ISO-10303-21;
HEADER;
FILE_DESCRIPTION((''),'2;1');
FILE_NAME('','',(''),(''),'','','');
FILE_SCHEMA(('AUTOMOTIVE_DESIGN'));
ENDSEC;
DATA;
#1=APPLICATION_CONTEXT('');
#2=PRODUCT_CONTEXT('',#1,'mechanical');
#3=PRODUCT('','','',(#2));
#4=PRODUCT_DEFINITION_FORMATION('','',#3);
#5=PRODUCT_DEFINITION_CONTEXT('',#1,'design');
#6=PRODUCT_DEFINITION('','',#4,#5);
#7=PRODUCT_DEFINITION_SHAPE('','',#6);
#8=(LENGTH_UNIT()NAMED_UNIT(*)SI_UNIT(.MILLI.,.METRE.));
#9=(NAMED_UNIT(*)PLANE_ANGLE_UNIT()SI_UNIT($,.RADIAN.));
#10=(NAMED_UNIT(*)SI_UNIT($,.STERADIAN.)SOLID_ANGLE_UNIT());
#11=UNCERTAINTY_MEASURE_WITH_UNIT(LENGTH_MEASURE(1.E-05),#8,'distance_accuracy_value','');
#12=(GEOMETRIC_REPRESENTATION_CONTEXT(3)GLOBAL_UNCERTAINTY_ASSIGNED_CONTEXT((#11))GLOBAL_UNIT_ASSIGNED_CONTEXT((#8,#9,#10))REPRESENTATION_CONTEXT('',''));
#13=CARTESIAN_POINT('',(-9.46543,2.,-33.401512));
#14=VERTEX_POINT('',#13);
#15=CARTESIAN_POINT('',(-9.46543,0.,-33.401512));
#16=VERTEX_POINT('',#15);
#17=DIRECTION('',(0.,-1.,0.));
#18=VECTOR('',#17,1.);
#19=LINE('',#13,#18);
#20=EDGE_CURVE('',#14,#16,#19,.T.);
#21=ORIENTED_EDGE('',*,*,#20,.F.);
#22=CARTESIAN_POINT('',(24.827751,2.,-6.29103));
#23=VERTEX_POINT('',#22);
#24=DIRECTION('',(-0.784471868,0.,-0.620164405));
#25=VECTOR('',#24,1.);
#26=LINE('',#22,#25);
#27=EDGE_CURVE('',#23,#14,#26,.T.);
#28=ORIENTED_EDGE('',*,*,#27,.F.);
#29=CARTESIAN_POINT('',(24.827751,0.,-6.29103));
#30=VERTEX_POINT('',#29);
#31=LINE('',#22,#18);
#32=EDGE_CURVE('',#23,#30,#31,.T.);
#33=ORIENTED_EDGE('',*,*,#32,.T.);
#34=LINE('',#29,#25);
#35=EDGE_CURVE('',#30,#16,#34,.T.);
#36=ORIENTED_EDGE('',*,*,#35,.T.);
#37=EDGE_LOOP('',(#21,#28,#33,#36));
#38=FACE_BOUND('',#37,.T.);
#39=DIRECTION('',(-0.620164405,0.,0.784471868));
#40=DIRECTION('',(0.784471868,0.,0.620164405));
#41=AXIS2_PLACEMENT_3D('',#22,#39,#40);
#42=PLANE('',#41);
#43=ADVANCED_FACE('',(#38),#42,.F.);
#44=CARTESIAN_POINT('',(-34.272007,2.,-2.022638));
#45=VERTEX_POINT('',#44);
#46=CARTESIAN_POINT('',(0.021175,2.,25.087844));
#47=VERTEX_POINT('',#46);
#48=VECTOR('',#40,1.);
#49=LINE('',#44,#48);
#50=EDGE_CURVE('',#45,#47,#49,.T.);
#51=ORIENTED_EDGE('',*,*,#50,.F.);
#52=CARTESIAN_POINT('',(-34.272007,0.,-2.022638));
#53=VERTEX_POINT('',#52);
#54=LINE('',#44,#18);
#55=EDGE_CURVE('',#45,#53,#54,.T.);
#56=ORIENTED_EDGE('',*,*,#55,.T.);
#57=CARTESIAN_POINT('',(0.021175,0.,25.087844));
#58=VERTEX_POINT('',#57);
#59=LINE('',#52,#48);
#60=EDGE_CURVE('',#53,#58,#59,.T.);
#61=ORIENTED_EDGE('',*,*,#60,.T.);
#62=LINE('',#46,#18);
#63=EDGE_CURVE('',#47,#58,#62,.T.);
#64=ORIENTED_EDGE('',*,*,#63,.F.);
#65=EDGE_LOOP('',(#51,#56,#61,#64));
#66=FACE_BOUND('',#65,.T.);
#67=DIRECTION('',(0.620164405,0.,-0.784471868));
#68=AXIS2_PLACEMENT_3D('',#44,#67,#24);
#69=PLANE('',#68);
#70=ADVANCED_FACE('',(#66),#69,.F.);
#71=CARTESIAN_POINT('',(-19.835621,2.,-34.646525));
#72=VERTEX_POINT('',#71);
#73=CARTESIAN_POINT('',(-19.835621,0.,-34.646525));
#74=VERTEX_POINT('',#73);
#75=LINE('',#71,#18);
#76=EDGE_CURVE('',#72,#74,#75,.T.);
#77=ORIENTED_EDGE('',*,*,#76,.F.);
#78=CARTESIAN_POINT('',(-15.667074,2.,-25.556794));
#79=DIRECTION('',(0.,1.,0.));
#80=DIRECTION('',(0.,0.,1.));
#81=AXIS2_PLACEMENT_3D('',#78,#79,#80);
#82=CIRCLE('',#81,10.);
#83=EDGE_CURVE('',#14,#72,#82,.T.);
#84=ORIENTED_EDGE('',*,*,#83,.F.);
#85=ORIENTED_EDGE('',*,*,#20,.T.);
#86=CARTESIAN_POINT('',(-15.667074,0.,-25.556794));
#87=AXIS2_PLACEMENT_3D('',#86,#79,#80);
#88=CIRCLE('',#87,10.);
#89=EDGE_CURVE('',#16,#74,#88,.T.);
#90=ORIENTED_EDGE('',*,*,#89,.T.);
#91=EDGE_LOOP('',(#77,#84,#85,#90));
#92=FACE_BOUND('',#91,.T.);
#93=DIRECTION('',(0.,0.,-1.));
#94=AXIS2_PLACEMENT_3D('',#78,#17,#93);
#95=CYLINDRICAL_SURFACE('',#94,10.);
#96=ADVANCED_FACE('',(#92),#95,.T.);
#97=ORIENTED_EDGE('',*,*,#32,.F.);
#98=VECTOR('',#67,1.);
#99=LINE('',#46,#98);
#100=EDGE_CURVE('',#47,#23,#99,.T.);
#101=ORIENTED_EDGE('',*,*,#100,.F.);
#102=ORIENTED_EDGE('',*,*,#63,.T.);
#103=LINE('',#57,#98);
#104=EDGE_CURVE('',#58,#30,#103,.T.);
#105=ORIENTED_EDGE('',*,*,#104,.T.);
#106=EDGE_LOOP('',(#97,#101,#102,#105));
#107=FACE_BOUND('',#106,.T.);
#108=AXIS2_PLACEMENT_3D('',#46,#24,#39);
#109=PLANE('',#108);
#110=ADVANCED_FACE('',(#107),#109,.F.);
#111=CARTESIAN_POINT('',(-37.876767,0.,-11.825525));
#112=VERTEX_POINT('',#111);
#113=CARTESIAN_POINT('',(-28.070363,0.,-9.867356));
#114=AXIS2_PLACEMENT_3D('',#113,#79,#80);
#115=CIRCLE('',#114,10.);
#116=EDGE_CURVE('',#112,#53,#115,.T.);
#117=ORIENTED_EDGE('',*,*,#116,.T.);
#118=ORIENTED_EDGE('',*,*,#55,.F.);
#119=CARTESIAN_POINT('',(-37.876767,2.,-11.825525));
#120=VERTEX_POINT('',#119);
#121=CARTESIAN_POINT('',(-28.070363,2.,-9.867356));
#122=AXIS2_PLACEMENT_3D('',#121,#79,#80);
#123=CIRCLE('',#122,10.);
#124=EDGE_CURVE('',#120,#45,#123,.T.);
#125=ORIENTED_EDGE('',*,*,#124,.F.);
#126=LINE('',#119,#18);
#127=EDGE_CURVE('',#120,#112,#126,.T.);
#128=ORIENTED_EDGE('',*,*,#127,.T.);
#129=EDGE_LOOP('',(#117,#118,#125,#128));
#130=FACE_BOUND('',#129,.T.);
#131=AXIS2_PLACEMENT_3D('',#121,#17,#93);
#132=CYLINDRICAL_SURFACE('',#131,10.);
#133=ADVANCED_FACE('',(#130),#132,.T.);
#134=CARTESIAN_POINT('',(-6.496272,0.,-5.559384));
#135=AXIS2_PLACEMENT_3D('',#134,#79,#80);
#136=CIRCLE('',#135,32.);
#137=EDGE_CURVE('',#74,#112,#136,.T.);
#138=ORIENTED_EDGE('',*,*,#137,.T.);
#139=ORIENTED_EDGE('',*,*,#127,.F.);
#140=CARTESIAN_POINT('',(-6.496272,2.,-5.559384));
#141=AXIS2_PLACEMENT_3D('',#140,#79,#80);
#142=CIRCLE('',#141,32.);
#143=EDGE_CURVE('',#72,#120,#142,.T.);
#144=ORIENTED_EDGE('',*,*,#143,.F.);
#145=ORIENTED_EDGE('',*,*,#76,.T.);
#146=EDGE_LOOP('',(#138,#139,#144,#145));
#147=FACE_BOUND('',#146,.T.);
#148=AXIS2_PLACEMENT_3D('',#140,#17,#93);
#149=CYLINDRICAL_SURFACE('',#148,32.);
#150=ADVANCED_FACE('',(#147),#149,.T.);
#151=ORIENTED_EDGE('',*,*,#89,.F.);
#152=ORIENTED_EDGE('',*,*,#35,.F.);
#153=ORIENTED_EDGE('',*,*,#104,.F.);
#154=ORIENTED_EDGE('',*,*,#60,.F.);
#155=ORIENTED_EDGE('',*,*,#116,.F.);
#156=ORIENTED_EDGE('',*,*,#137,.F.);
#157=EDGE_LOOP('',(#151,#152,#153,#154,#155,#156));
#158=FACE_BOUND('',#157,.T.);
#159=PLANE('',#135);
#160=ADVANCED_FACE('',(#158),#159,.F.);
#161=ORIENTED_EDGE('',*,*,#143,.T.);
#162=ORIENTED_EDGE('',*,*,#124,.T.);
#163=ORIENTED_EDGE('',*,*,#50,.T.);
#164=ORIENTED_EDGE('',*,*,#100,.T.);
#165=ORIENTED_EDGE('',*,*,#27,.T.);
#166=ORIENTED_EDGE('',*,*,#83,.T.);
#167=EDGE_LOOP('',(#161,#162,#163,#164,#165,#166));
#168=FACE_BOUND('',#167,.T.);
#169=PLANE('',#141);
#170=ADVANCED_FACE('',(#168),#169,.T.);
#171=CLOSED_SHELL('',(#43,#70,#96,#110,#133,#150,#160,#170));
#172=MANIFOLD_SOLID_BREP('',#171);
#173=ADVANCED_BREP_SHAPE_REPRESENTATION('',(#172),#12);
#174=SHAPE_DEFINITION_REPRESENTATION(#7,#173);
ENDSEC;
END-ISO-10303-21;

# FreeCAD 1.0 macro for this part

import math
import FreeCAD as App
import Part
import Sketcher
from FreeCAD import Vector

doc = App.newDocument("Part")
body = doc.addObject("PartDesign::Body", "Body")

# Sketch on XZ plane
sketch1 = doc.addObject("Sketcher::SketchObject", "Sketch")
body.addObject(sketch1)
sketch1.AttachmentSupport = (doc.XZ_Plane, [""])
sketch1.MapMode = "FlatFace"
sketch1.addGeometry(Part.LineSegment(Vector(-34.272007, -2.022638, 0), Vector(0.021175, 25.087844, 0)), False)
sketch1.addGeometry(Part.LineSegment(Vector(0.021175, 25.087844, 0), Vector(24.827751, -6.29103, 0)), False)
sketch1.addGeometry(Part.LineSegment(Vector(24.827751, -6.29103, 0), Vector(-9.46543, -33.401512, 0)), False)
sketch1.addGeometry(Part.ArcOfCircle(Part.Circle(Vector(-15.667074, -25.556794, 0), Vector(0, 0, 1), 10), math.radians(-114.636167), math.radians(-51.671859)), False)
sketch1.addGeometry(Part.ArcOfCircle(Part.Circle(Vector(-6.496272, -5.559384, 0), Vector(0, 0, 1), 32), math.radians(-168.707551), math.radians(-114.636167)), False)
sketch1.addGeometry(Part.ArcOfCircle(Part.Circle(Vector(-28.070363, -9.867356, 0), Vector(0, 0, 1), 10), math.radians(128.328141), math.radians(191.292449)), False)
sketch1.addConstraint(Sketcher.Constraint("Coincident", 0, 2, 1, 1))
sketch1.addConstraint(Sketcher.Constraint("Coincident", 1, 2, 2, 1))
sketch1.addConstraint(Sketcher.Constraint("Tangent", 2, 2, 3, 2))
sketch1.addConstraint(Sketcher.Constraint("Tangent", 3, 1, 4, 2))
sketch1.addConstraint(Sketcher.Constraint("Tangent", 4, 1, 5, 2))
sketch1.addConstraint(Sketcher.Constraint("Tangent", 5, 1, 0, 1))
sketch1.addConstraint(Sketcher.Constraint("Equal", 3, 5))
sketch1.addConstraint(Sketcher.Constraint("Perpendicular", 0, 1))
sketch1.addConstraint(Sketcher.Constraint("Perpendicular", 1, 2))
sketch1.addConstraint(Sketcher.Constraint("Equal", 0, 2))
sketch1.addConstraint(Sketcher.Constraint("Radius", 3, 10.0))
sketch1.addConstraint(Sketcher.Constraint("Radius", 4, 32.0))
sketch1.addConstraint(Sketcher.Constraint("Distance", 1, 40.0))
sketch1.addConstraint(Sketcher.Constraint("DistanceY", 3, 1, 4, 1, 22.821))
sketch1.addConstraint(Sketcher.Constraint("DistanceY", 5, 3, 0, 2, 34.955201))
sketch1.addConstraint(Sketcher.Constraint("DistanceX", -1, 1, 1, 2, 24.827751))
sketch1.addConstraint(Sketcher.Constraint("DistanceY", 1, 2, -1, 1, 6.29103))
pad1 = doc.addObject("PartDesign::Pad", "Pad")
body.addObject(pad1)
pad1.Profile = sketch1
pad1.Length = 2
pad1.Reversed = True

doc.recompute()
